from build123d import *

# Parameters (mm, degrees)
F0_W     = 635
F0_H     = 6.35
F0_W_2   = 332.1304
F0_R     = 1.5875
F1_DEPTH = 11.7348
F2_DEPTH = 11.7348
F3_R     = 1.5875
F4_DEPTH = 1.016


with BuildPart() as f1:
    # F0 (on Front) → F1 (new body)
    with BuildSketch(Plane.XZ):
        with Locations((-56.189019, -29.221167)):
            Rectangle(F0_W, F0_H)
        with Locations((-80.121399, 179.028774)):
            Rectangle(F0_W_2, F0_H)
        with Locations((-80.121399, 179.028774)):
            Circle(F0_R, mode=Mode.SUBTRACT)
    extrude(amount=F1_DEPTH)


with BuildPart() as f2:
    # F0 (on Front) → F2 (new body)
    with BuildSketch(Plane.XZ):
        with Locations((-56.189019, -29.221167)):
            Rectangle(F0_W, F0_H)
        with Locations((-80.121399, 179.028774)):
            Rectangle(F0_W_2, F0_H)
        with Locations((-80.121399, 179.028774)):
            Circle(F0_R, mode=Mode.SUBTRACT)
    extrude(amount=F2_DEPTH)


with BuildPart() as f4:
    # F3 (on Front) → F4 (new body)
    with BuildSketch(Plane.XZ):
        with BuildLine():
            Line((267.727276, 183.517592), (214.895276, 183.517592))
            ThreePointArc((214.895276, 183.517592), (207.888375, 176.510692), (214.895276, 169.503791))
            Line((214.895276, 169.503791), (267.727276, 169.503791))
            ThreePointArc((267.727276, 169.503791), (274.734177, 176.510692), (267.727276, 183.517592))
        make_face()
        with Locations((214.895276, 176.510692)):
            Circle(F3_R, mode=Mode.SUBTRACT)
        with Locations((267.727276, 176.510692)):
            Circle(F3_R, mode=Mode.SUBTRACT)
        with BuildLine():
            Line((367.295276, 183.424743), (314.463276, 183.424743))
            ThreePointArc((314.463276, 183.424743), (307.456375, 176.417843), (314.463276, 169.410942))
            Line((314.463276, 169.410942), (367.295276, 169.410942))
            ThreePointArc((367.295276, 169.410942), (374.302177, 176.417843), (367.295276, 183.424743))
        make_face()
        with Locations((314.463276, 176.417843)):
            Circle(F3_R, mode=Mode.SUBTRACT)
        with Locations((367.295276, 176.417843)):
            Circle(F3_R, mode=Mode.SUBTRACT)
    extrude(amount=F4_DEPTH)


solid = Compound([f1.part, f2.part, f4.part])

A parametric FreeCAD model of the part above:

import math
import FreeCAD as App
import Part
import Sketcher

V = App.Vector
Q = App.Units.Quantity


def add_polygon(sketch, points):
    """Adds a closed chain of lines whose ends are joined by coincident constraints."""
    first, n = sketch.GeometryCount, len(points)
    for a, b in zip(points, points[1:] + points[:1]):
        sketch.addGeometry(Part.LineSegment(App.Vector(*a, 0), App.Vector(*b, 0)), False)
    for i in range(n):
        sketch.addConstraint(Sketcher.Constraint("Coincident", first + i, 2, first + (i + 1) % n, 1))

doc = App.newDocument("Part")
body = doc.addObject("PartDesign::Body", "Body")
body.AllowCompound = True

# Sketch on XZ plane
sketch1 = doc.addObject("Sketcher::SketchObject", "Sketch")
body.addObject(sketch1)
sketch1.AttachmentSupport = (doc.XZ_Plane, [""])
sketch1.MapMode = "FlatFace"
add_polygon(sketch1, [(-373.7, -26), (-373.7, -32.4), (261.3, -32.4), (261.3, -26)])  # lines 0-3
add_polygon(sketch1, [(-246.2, 182.2), (-246.2, 175.9), (85.9, 175.9), (85.9, 182.2)])  # lines 4-7
sketch1.addGeometry(Part.Circle(V(-80.1, 179, 0), V(0, 0, 1), 1.6), False)  # 8
sketch1.addConstraint([
    Sketcher.Constraint("Vertical", 0),
    Sketcher.Constraint("Horizontal", 1),
    Sketcher.Constraint("Vertical", 2),
    Sketcher.Constraint("Horizontal", 3),
    Sketcher.Constraint("Vertical", 4),
    Sketcher.Constraint("Horizontal", 5),
    Sketcher.Constraint("Vertical", 6),
    Sketcher.Constraint("Horizontal", 7),
    Sketcher.Constraint("Equal", 2, 4),
    Sketcher.Constraint("DistanceX", 1, 1, 1, 2, Q("25 in")),
    Sketcher.Constraint("Diameter", 8, Q("0.125 in")),
    Sketcher.Constraint("DistanceY", 0, 2, 0, 1, Q("0.25 in")),
    Sketcher.Constraint("DistanceX", 5, 1, 5, 2, Q("13.076 in")),
    Sketcher.Constraint("DistanceX", 4, 2, 8, 3, Q("6.538 in")),
    Sketcher.Constraint("DistanceY", 4, 2, 8, 3, Q("0.125 in")),
    Sketcher.Constraint("DistanceX", 8, 3, -1, 1, Q("80.121399 mm")),
    Sketcher.Constraint("DistanceX", 0, 2, -1, 1, Q("373.689019 mm")),
    Sketcher.Constraint("DistanceY", 0, 2, 8, 3, Q("211.424941 mm")),
    Sketcher.Constraint("DistanceY", -1, 1, 8, 3, Q("179.028774 mm")),
])
pad1 = doc.addObject("PartDesign::Pad", "Pad")
body.addObject(pad1)
pad1.Profile = sketch1
pad1.Length = Q("0.462 in")
body2 = doc.addObject("PartDesign::Body", "Body001")
body2.AllowCompound = True

# Sketch on XZ plane
sketch2 = doc.addObject("Sketcher::SketchObject", "Sketch001")
body2.addObject(sketch2)
sketch2.AttachmentSupport = (doc.getObject("XZ_Plane001"), [""])
sketch2.MapMode = "FlatFace"
add_polygon(sketch2, [(-373.7, -26), (-373.7, -32.4), (261.3, -32.4), (261.3, -26)])  # lines 0-3
add_polygon(sketch2, [(-246.2, 182.2), (-246.2, 175.9), (85.9, 175.9), (85.9, 182.2)])  # lines 4-7
sketch2.addGeometry(Part.Circle(V(-80.1, 179, 0), V(0, 0, 1), 1.6), False)  # 8
sketch2.addConstraint([
    Sketcher.Constraint("Vertical", 0),
    Sketcher.Constraint("Horizontal", 1),
    Sketcher.Constraint("Vertical", 2),
    Sketcher.Constraint("Horizontal", 3),
    Sketcher.Constraint("Vertical", 4),
    Sketcher.Constraint("Horizontal", 5),
    Sketcher.Constraint("Vertical", 6),
    Sketcher.Constraint("Horizontal", 7),
    Sketcher.Constraint("Equal", 2, 4),
    Sketcher.Constraint("DistanceX", 1, 1, 1, 2, Q("25 in")),
    Sketcher.Constraint("Diameter", 8, Q("0.125 in")),
    Sketcher.Constraint("DistanceY", 0, 2, 0, 1, Q("0.25 in")),
    Sketcher.Constraint("DistanceX", 5, 1, 5, 2, Q("13.076 in")),
    Sketcher.Constraint("DistanceX", 4, 2, 8, 3, Q("6.538 in")),
    Sketcher.Constraint("DistanceY", 4, 2, 8, 3, Q("0.125 in")),
    Sketcher.Constraint("DistanceX", 8, 3, -1, 1, Q("80.121399 mm")),
    Sketcher.Constraint("DistanceX", 0, 2, -1, 1, Q("373.689019 mm")),
    Sketcher.Constraint("DistanceY", 0, 2, 8, 3, Q("211.424941 mm")),
    Sketcher.Constraint("DistanceY", -1, 1, 8, 3, Q("179.028774 mm")),
])
pad2 = doc.addObject("PartDesign::Pad", "Pad001")
body2.addObject(pad2)
pad2.Profile = sketch2
pad2.Length = Q("0.462 in")
body3 = doc.addObject("PartDesign::Body", "Body002")
body3.AllowCompound = True

# Sketch on XZ plane
sketch3 = doc.addObject("Sketcher::SketchObject", "Sketch002")
body3.addObject(sketch3)
sketch3.AttachmentSupport = (doc.getObject("XZ_Plane002"), [""])
sketch3.MapMode = "FlatFace"
sketch3.addGeometry([
    Part.LineSegment(V(267.7, 183.5, 0), V(214.9, 183.5, 0)),  # 0
    Part.ArcOfCircle(Part.Circle(V(214.9, 176.5, 0), V(0, 0, 1), 7), math.radians(90), math.radians(270)),  # 1
    Part.LineSegment(V(214.9, 169.5, 0), V(267.7, 169.5, 0)),  # 2
    Part.ArcOfCircle(Part.Circle(V(267.7, 176.5, 0), V(0, 0, 1), 7), math.radians(-90), math.radians(90)),  # 3
    Part.Circle(V(214.9, 176.5, 0), V(0, 0, 1), 1.6),  # 4
    Part.Circle(V(267.7, 176.5, 0), V(0, 0, 1), 1.6),  # 5
    Part.LineSegment(V(367.3, 183.4, 0), V(314.5, 183.4, 0)),  # 6
    Part.ArcOfCircle(Part.Circle(V(314.5, 176.4, 0), V(0, 0, 1), 7), math.radians(90), math.radians(270)),  # 7
    Part.LineSegment(V(314.5, 169.4, 0), V(367.3, 169.4, 0)),  # 8
    Part.ArcOfCircle(Part.Circle(V(367.3, 176.4, 0), V(0, 0, 1), 7), math.radians(-90), math.radians(90)),  # 9
    Part.Circle(V(314.5, 176.4, 0), V(0, 0, 1), 1.6),  # 10
    Part.Circle(V(367.3, 176.4, 0), V(0, 0, 1), 1.6),  # 11
], False)
sketch3.addConstraint([
    Sketcher.Constraint("Tangent", 0, 2, 1, 1),
    Sketcher.Constraint("Tangent", 1, 2, 2, 1),
    Sketcher.Constraint("Tangent", 2, 2, 3, 1),
    Sketcher.Constraint("Tangent", 3, 2, 0, 1),
    Sketcher.Constraint("Tangent", 6, 2, 7, 1),
    Sketcher.Constraint("Tangent", 7, 2, 8, 1),
    Sketcher.Constraint("Tangent", 8, 2, 9, 1),
    Sketcher.Constraint("Tangent", 9, 2, 6, 1),
    Sketcher.Constraint("Horizontal", 0),
    Sketcher.Constraint("Horizontal", 2),
    Sketcher.Constraint("Horizontal", 6),
    Sketcher.Constraint("Horizontal", 8),
    Sketcher.Constraint("Coincident", 4, 3, 1, 3),
    Sketcher.Constraint("Coincident", 5, 3, 3, 3),
    Sketcher.Constraint("Coincident", 10, 3, 7, 3),
    Sketcher.Constraint("Coincident", 11, 3, 9, 3),
    Sketcher.Constraint("Equal", 4, 5),
    Sketcher.Constraint("Equal", 3, 7),
    Sketcher.Constraint("Equal", 5, 10),
    Sketcher.Constraint("Equal", 10, 11),
    Sketcher.Constraint("Equal", 2, 6),
    Sketcher.Constraint("Diameter", 4, Q("0.125 in")),
    Sketcher.Constraint("DistanceX", 4, 3, 9, 3, Q("6 in")),
    Sketcher.Constraint("DistanceX", 0, 2, 0, 1, Q("2.08 in")),
    Sketcher.Constraint("Radius", 1, Q("7.006901 mm")),
    Sketcher.Constraint("DistanceY", -1, 1, 1, 3, Q("176.510692 mm")),
    Sketcher.Constraint("DistanceY", -1, 1, 8, 2, Q("169.410942 mm")),
    Sketcher.Constraint("DistanceX", -1, 1, 1, 3, Q("214.895275 mm")),
])
pad3 = doc.addObject("PartDesign::Pad", "Pad002")
body3.addObject(pad3)
pad3.Profile = sketch3
pad3.Length = Q("0.04 in")

doc.recompute()
